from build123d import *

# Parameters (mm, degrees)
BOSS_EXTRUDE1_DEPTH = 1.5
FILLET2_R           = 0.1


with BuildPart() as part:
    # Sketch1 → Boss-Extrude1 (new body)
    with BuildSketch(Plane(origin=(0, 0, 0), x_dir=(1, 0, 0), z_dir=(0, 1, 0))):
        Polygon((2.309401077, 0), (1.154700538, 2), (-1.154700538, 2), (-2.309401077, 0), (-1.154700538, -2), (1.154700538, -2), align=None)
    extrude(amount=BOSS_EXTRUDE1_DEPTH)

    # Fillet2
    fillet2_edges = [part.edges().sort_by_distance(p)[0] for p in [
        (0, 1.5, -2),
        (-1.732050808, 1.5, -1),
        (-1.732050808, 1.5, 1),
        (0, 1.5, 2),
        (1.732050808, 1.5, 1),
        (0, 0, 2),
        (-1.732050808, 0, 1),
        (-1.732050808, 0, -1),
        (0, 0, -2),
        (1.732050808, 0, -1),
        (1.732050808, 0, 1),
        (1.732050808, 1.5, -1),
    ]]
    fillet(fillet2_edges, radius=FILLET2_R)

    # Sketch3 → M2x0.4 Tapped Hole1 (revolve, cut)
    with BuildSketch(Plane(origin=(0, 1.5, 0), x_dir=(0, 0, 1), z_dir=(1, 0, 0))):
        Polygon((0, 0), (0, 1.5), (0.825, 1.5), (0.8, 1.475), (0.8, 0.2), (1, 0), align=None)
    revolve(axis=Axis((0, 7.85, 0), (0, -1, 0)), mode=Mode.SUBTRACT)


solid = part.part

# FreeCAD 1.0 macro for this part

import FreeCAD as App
import Part
import Sketcher
from FreeCAD import Vector
Q = App.Units.Quantity


def edges_at(feature, points):
    """Names of the edges that pass closest to the given points."""
    edges = feature.Shape.Edges
    near = lambda p: min(range(len(edges)), key=lambda i: edges[i].distToShape(Part.Vertex(*p))[0])
    return sorted({f"Edge{near(p) + 1}" for p in points})

doc = App.newDocument("Part")
body = doc.addObject("PartDesign::Body", "Body")

sketch1 = body.newObject("Sketcher::SketchObject", "Sketch")
sketch1.AttachmentSupport = (doc.getObject("XZ_Plane"), [""])
sketch1.MapMode = "FlatFace"
sketch1.addGeometry([
    Part.LineSegment(Vector(2.309401, 0, 0), Vector(1.154701, -2, 0)),
    Part.LineSegment(Vector(1.154701, -2, 0), Vector(-1.154701, -2, 0)),
    Part.LineSegment(Vector(-1.154701, -2, 0), Vector(-2.309401, 0, 0)),
    Part.LineSegment(Vector(-2.309401, 0, 0), Vector(-1.154701, 2, 0)),
    Part.LineSegment(Vector(-1.154701, 2, 0), Vector(1.154701, 2, 0)),
    Part.LineSegment(Vector(1.154701, 2, 0), Vector(2.309401, 0, 0)),
], False)
sketch1.addConstraint([
    Sketcher.Constraint("Coincident", 0, 2, 1, 1),
    Sketcher.Constraint("Coincident", 1, 2, 2, 1),
    Sketcher.Constraint("Coincident", 2, 2, 3, 1),
    Sketcher.Constraint("Coincident", 3, 2, 4, 1),
    Sketcher.Constraint("Coincident", 4, 2, 5, 1),
    Sketcher.Constraint("Coincident", 5, 2, 0, 1),
    Sketcher.Constraint("Horizontal", 1),
    Sketcher.Constraint("Horizontal", 4),
    Sketcher.Constraint("Symmetric", 0, 2, 3, 2, -1, 1),
    Sketcher.Constraint("Symmetric", 2, 2, 5, 2, -1, 1),
    Sketcher.Constraint("PointOnObject", 2, 2, -1),
    Sketcher.Constraint("Parallel", 2, 5),
    Sketcher.Constraint("Vertical", 1, 2, 3, 2),
    Sketcher.Constraint("Angle", 0, Q("-120 deg")),
    Sketcher.Constraint("DistanceY", 0, 2, -1, 1, 2.0),
    Sketcher.Constraint("DistanceX", 1, 2, 1, 1, 2.309401),
])
pad1 = body.newObject("PartDesign::Pad", "Pad")
pad1.Profile = sketch1
pad1.Length = 1.5
pad1.Reversed = True
doc.recompute()

fillet = body.newObject("PartDesign::Fillet", "Fillet")
fillet.Base = (pad1, edges_at(pad1, [
    (0, 1.5, -2),
    (-1.732, 1.5, -1),
    (-1.732, 1.5, 1),
    (0, 1.5, 2),
    (1.732, 1.5, 1),
    (0, 0, 2),
    (-1.732, 0, 1),
    (-1.732, 0, -1),
    (0, 0, -2),
    (1.732, 0, -1),
    (1.732, 0, 1),
    (1.732, 1.5, -1),
]))
fillet.Radius = 0.1

sketch2 = body.newObject("Sketcher::SketchObject", "Sketch001")
sketch2.AttachmentSupport = (doc.getObject("YZ_Plane"), [""])
sketch2.MapMode = "FlatFace"
sketch2.addGeometry([
    Part.LineSegment(Vector(0, 0, 0), Vector(1.5, 0, 0)),
    Part.LineSegment(Vector(1.5, 0, 0), Vector(1.5, 1, 0)),
    Part.LineSegment(Vector(1.5, 1, 0), Vector(1.3, 0.8, 0)),
    Part.LineSegment(Vector(1.3, 0.8, 0), Vector(0.025, 0.8, 0)),
    Part.LineSegment(Vector(0.025, 0.8, 0), Vector(0, 0.825, 0)),
    Part.LineSegment(Vector(0, 0.825, 0), Vector(0, 0, 0)),
], False)
sketch2.addConstraint([
    Sketcher.Constraint("Coincident", 0, 2, 1, 1),
    Sketcher.Constraint("Coincident", 1, 2, 2, 1),
    Sketcher.Constraint("Coincident", 2, 2, 3, 1),
    Sketcher.Constraint("Coincident", 3, 2, 4, 1),
    Sketcher.Constraint("Coincident", 4, 2, 5, 1),
    Sketcher.Constraint("Coincident", 5, 2, 0, 1),
    Sketcher.Constraint("Horizontal", 0),
    Sketcher.Constraint("Vertical", 1),
    Sketcher.Constraint("Horizontal", 3),
    Sketcher.Constraint("Vertical", 5),
    Sketcher.Constraint("Coincident", 5, 2, -1, 1),
    Sketcher.Constraint("Perpendicular", 2, 4),
    Sketcher.Constraint("DistanceY", 1, 1, 1, 2, 1.0),
    Sketcher.Constraint("Angle", 2, Q("-135 deg")),
    Sketcher.Constraint("DistanceX", 0, 1, 0, 2, 1.5),
    Sketcher.Constraint("DistanceX", -1, 1, 2, 2, 1.3),
    Sketcher.Constraint("DistanceX", 3, 2, 3, 1, 1.275),
])
groove = body.newObject("PartDesign::Groove", "Groove")
groove.Profile = sketch2
groove.ReferenceAxis = (sketch2, ["H_Axis"])
groove.Angle = 360

doc.recompute()
